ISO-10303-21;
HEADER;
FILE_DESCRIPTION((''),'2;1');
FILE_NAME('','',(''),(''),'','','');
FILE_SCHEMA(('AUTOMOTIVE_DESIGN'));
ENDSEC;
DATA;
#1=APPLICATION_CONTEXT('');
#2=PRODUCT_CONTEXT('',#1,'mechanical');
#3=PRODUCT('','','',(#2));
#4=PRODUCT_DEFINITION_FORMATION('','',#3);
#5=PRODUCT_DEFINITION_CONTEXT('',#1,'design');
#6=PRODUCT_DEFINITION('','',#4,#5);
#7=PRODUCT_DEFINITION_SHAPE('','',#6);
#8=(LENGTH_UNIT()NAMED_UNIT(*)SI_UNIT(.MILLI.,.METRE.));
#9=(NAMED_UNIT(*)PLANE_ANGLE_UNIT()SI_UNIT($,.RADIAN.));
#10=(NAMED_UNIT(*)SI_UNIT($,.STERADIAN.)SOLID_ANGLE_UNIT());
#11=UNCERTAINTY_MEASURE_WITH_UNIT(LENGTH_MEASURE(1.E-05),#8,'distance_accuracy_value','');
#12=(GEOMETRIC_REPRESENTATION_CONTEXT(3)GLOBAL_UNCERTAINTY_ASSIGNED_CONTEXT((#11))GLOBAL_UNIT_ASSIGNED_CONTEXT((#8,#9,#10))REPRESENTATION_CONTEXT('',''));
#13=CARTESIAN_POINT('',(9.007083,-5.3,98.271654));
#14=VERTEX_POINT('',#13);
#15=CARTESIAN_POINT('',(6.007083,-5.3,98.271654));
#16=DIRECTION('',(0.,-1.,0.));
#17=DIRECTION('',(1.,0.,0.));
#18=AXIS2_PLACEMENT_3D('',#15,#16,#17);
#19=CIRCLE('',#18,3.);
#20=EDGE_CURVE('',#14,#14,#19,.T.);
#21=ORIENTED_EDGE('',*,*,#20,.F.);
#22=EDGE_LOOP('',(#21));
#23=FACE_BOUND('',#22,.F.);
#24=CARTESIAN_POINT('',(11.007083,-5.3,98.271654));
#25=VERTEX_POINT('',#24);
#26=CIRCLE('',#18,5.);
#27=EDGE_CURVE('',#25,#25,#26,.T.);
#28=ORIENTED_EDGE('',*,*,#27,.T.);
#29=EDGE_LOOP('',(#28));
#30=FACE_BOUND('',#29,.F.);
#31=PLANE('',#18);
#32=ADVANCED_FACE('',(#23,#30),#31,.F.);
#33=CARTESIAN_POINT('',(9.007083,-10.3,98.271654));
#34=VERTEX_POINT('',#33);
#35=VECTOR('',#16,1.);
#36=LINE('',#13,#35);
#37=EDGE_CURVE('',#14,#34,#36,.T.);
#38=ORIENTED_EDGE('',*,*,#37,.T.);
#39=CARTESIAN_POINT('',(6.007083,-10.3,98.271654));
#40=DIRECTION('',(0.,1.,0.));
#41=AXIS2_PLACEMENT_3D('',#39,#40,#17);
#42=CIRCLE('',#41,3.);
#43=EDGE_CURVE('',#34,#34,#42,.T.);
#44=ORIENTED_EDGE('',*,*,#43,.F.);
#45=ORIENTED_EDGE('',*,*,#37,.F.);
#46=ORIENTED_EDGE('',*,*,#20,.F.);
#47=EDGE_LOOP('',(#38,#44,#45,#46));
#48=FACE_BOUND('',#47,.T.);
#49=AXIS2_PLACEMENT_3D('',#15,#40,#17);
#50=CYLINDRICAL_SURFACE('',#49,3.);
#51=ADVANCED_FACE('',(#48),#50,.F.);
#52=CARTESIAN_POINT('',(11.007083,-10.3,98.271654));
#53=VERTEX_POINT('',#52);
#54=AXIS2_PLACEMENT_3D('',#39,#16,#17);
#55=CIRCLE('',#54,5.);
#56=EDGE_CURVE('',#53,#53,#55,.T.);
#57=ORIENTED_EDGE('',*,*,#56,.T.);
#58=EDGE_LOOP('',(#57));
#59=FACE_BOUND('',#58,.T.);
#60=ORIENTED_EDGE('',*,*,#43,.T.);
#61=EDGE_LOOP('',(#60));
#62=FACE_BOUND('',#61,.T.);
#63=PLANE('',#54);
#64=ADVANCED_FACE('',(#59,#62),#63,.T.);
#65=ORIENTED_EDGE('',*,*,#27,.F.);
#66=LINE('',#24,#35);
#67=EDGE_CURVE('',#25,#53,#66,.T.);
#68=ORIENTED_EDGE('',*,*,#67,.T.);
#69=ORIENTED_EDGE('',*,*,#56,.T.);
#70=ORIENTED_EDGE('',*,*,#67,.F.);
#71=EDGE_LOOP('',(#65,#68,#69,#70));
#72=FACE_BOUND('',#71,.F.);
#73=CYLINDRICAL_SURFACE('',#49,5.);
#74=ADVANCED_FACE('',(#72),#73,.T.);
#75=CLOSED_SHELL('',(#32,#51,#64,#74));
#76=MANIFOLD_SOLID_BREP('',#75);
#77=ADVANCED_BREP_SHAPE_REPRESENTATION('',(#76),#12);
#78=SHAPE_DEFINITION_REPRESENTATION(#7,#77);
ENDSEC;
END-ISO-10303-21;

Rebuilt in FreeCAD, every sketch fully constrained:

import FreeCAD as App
import Part
import Sketcher
from FreeCAD import Vector

doc = App.newDocument("Part")
params = doc.addObject("Spreadsheet::Sheet", "Params")
for row, (alias, value) in enumerate([
    ("sketch1_diameter", "6 mm"),
    ("pad1_length", "9 mm"),
    ("sketch2_diameter", "10 mm"),
    ("pad2_length", "5 mm"),
], start=1):
    params.set(f"A{row}", alias)
    params.set(f"B{row}", "=" + value)
    params.setAlias(f"B{row}", alias)

body = doc.addObject("PartDesign::Body", "Body")

# Sketch on XZ plane
sketch1 = body.newObject("Sketcher::SketchObject", "Sketch")
sketch1.AttachmentSupport = (doc.getObject("XZ_Plane"), [""])
sketch1.MapMode = "FlatFace"
sketch1.AttachmentOffset = App.Placement(Vector(0, 0, 5.3), App.Rotation())
sketch1.addGeometry(Part.Circle(Vector(6, 98.3, 0), Vector(0, 0, 1), 3), False)
sketch1.addConstraint(Sketcher.Constraint("Diameter", 0, 6.0))
sketch1.addConstraint(Sketcher.Constraint("DistanceX", -1, 1, 0, 3, 6.007083))
sketch1.addConstraint(Sketcher.Constraint("DistanceY", -1, 1, 0, 3, 98.271654))
sketch1.setExpression("Constraints[0]", "Params.sketch1_diameter")
pad1 = body.newObject("PartDesign::Pad", "Pad")
pad1.Profile = sketch1
pad1.setExpression("Length", "Params.pad1_length")
body2 = doc.addObject("PartDesign::Body", "Body001")

# Sketch on XZ plane
sketch2 = body2.newObject("Sketcher::SketchObject", "Sketch001")
sketch2.AttachmentSupport = (doc.getObject("XZ_Plane001"), [""])
sketch2.MapMode = "FlatFace"
sketch2.AttachmentOffset = App.Placement(Vector(0, 0, 5.3), App.Rotation())
sketch2.addGeometry(Part.Circle(Vector(6, 98, 0), Vector(0, 0, 1), 5), False)
sketch2.addConstraint(Sketcher.Constraint("Diameter", 0, 10.0))
sketch2.addConstraint(Sketcher.Constraint("DistanceX", -1, 1, 0, 3, 6.007083))
sketch2.addConstraint(Sketcher.Constraint("DistanceY", -1, 1, 0, 3, 98.271654))
sketch2.setExpression("Constraints[0]", "Params.sketch2_diameter")
pad2 = body2.newObject("PartDesign::Pad", "Pad001")
pad2.Profile = sketch2
pad2.setExpression("Length", "Params.pad2_length")
doc.recompute()

boolean = body2.newObject("PartDesign::Boolean", "Boolean")
boolean.Type = "Cut"
boolean.addObjects([body])

doc.recompute()
